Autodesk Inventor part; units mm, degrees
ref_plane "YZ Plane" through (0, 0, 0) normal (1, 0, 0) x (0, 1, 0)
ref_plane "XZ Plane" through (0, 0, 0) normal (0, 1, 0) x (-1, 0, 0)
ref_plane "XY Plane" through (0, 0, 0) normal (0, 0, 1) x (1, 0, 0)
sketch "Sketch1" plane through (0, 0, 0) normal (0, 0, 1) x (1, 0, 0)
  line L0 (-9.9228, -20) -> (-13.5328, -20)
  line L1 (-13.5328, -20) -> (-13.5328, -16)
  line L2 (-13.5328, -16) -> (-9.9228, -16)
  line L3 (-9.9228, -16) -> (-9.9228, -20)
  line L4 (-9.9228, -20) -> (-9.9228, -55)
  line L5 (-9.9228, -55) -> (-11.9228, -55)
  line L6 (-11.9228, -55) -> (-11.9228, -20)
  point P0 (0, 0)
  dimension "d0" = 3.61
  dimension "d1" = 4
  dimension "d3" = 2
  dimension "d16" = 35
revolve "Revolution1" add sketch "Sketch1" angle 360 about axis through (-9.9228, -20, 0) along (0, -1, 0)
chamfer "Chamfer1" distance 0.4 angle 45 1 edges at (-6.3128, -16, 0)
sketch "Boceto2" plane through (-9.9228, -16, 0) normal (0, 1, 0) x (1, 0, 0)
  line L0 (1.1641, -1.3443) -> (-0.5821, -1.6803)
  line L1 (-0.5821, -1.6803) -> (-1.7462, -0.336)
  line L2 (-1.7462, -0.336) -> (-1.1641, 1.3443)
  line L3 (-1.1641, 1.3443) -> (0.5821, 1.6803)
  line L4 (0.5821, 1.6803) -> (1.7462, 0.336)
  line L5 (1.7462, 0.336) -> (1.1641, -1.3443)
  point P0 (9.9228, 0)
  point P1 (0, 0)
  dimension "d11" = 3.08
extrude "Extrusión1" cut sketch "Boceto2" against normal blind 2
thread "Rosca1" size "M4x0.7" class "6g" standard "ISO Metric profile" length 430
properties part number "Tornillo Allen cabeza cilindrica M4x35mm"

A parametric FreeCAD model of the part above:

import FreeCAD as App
import Part
import Sketcher

V = App.Vector
Q = App.Units.Quantity


def edges_at(feature, points):
    """Names of the edges that pass closest to the given points."""
    edges = feature.Shape.Edges
    near = lambda p: min(range(len(edges)), key=lambda i: edges[i].distToShape(Part.Vertex(*p))[0])
    return sorted({f"Edge{near(p) + 1}" for p in points})

doc = App.newDocument("Part")
params = doc.addObject("Spreadsheet::Sheet", "Params")
for row, (alias, value) in enumerate([
    ("sketch1_width", "2 mm"),
    ("sketch1_height", "4 mm"),
    ("sketch1_height2", "35 mm"),
    ("sketch1_width2", "3.61 mm"),
    ("revolution_angle", "360 deg"),
    ("chamfer_size", "0.4 mm"),
    ("pocket1_length", "2 mm"),
], start=1):
    params.set(f"A{row}", alias)
    params.set(f"B{row}", "=" + value)
    params.setAlias(f"B{row}", alias)

body = doc.addObject("PartDesign::Body", "Body")

# Sketch on XY plane
sketch1 = body.newObject("Sketcher::SketchObject", "Sketch")
sketch1.AttachmentSupport = (doc.getObject("XY_Plane"), [""])
sketch1.MapMode = "FlatFace"
sketch1.addGeometry(Part.LineSegment(V(-9.9, -55, 0), V(-9.9, -16, 0)), False)
sketch1.addGeometry(Part.LineSegment(V(-9.9, -16, 0), V(-13.5, -16, 0)), False)
sketch1.addGeometry(Part.LineSegment(V(-13.5, -16, 0), V(-13.5, -20, 0)), False)
sketch1.addGeometry(Part.LineSegment(V(-13.5, -20, 0), V(-11.9, -20, 0)), False)
sketch1.addGeometry(Part.LineSegment(V(-11.9, -20, 0), V(-11.9, -55, 0)), False)
sketch1.addGeometry(Part.LineSegment(V(-11.9, -55, 0), V(-9.9, -55, 0)), False)
sketch1.addGeometry(Part.LineSegment(V(-9.9, -16, 0), V(-9.9, -55, 0)), True)  # axis
sketch1.addConstraint(Sketcher.Constraint("Coincident", 0, 2, 1, 1))
sketch1.addConstraint(Sketcher.Constraint("Coincident", 1, 2, 2, 1))
sketch1.addConstraint(Sketcher.Constraint("Coincident", 2, 2, 3, 1))
sketch1.addConstraint(Sketcher.Constraint("Coincident", 3, 2, 4, 1))
sketch1.addConstraint(Sketcher.Constraint("Coincident", 4, 2, 5, 1))
sketch1.addConstraint(Sketcher.Constraint("Coincident", 5, 2, 0, 1))
sketch1.addConstraint(Sketcher.Constraint("Vertical", 0))
sketch1.addConstraint(Sketcher.Constraint("Horizontal", 1))
sketch1.addConstraint(Sketcher.Constraint("Vertical", 2))
sketch1.addConstraint(Sketcher.Constraint("Horizontal", 3))
sketch1.addConstraint(Sketcher.Constraint("Vertical", 4))
sketch1.addConstraint(Sketcher.Constraint("Horizontal", 5))
sketch1.addConstraint(Sketcher.Constraint("Vertical", 6))
sketch1.addConstraint(Sketcher.Constraint("Coincident", 6, 1, 0, 2))
sketch1.addConstraint(Sketcher.Constraint("Horizontal", 4, 2, 6, 2))
sketch1.addConstraint(Sketcher.Constraint("DistanceX", 5, 1, 5, 2, Q("2 mm")))
sketch1.addConstraint(Sketcher.Constraint("DistanceY", 2, 2, 2, 1, Q("4 mm")))
sketch1.addConstraint(Sketcher.Constraint("DistanceY", 4, 2, 4, 1, Q("35 mm")))
sketch1.addConstraint(Sketcher.Constraint("DistanceX", 1, 2, 1, 1, Q("3.61 mm")))
sketch1.addConstraint(Sketcher.Constraint("DistanceY", 0, 2, -1, 1, Q("16 mm")))
sketch1.addConstraint(Sketcher.Constraint("DistanceX", 0, 2, -1, 1, Q("9.9228 mm")))
sketch1.setExpression("Constraints[15]", "Params.sketch1_width")
sketch1.setExpression("Constraints[16]", "Params.sketch1_height")
sketch1.setExpression("Constraints[17]", "Params.sketch1_height2")
sketch1.setExpression("Constraints[18]", "Params.sketch1_width2")
revolution = body.newObject("PartDesign::Revolution", "Revolution")
revolution.Profile = sketch1
revolution.ReferenceAxis = (sketch1, ["Axis0"])
revolution.setExpression("Angle", "Params.revolution_angle")
doc.recompute()

chamfer = body.newObject("PartDesign::Chamfer", "Chamfer")
chamfer.Base = (revolution, edges_at(revolution, [(-6.313, -16, 0)]))
chamfer.setExpression("Size", "Params.chamfer_size")

# Sketch on XZ plane
sketch2 = body.newObject("Sketcher::SketchObject", "Sketch001")
sketch2.AttachmentSupport = (doc.getObject("XZ_Plane"), [""])
sketch2.MapMode = "FlatFace"
sketch2.AttachmentOffset = App.Placement(V(0, 0, 16), App.Rotation())
sketch2.addGeometry(Part.LineSegment(V(-10.5, 1.7, 0), V(-8.8, 1.3, 0)), False)
sketch2.addGeometry(Part.LineSegment(V(-8.8, 1.3, 0), V(-8.2, -0.3, 0)), False)
sketch2.addGeometry(Part.LineSegment(V(-8.2, -0.3, 0), V(-9.3, -1.7, 0)), False)
sketch2.addGeometry(Part.LineSegment(V(-9.3, -1.7, 0), V(-11.1, -1.3, 0)), False)
sketch2.addGeometry(Part.LineSegment(V(-11.1, -1.3, 0), V(-11.7, 0.3, 0)), False)
sketch2.addGeometry(Part.LineSegment(V(-11.7, 0.3, 0), V(-10.5, 1.7, 0)), False)
sketch2.addConstraint(Sketcher.Constraint("Coincident", 0, 2, 1, 1))
sketch2.addConstraint(Sketcher.Constraint("Coincident", 1, 2, 2, 1))
sketch2.addConstraint(Sketcher.Constraint("Coincident", 2, 2, 3, 1))
sketch2.addConstraint(Sketcher.Constraint("Coincident", 3, 2, 4, 1))
sketch2.addConstraint(Sketcher.Constraint("Coincident", 4, 2, 5, 1))
sketch2.addConstraint(Sketcher.Constraint("Coincident", 5, 2, 0, 1))
sketch2.addConstraint(Sketcher.Constraint("Parallel", 0, 3))
sketch2.addConstraint(Sketcher.Constraint("Parallel", 1, 4))
sketch2.addConstraint(Sketcher.Constraint("Parallel", 2, 5))
sketch2.addConstraint(Sketcher.Constraint("Equal", 0, 1))
sketch2.addConstraint(Sketcher.Constraint("Equal", 1, 2))
sketch2.addConstraint(Sketcher.Constraint("Equal", 2, 3))
sketch2.addConstraint(Sketcher.Constraint("Angle", 2, Q("-130.891 deg")))
sketch2.addConstraint(Sketcher.Constraint("DistanceY", 1, 2, -1, 1, Q("0.336 mm")))
sketch2.addConstraint(Sketcher.Constraint("DistanceX", 3, 2, -1, 1, Q("11.087 mm")))
sketch2.addConstraint(Sketcher.Constraint("DistanceX", 4, 2, -1, 1, Q("11.669 mm")))
sketch2.addConstraint(Sketcher.Constraint("DistanceY", -1, 1, 4, 2, Q("0.336 mm")))
sketch2.addConstraint(Sketcher.Constraint("DistanceX", 5, 2, -1, 1, Q("10.505 mm")))
pocket1 = body.newObject("PartDesign::Pocket", "Pocket")
pocket1.Profile = sketch2
pocket1.setExpression("Length", "Params.pocket1_length")
pocket1.Reversed = True

doc.recompute()
